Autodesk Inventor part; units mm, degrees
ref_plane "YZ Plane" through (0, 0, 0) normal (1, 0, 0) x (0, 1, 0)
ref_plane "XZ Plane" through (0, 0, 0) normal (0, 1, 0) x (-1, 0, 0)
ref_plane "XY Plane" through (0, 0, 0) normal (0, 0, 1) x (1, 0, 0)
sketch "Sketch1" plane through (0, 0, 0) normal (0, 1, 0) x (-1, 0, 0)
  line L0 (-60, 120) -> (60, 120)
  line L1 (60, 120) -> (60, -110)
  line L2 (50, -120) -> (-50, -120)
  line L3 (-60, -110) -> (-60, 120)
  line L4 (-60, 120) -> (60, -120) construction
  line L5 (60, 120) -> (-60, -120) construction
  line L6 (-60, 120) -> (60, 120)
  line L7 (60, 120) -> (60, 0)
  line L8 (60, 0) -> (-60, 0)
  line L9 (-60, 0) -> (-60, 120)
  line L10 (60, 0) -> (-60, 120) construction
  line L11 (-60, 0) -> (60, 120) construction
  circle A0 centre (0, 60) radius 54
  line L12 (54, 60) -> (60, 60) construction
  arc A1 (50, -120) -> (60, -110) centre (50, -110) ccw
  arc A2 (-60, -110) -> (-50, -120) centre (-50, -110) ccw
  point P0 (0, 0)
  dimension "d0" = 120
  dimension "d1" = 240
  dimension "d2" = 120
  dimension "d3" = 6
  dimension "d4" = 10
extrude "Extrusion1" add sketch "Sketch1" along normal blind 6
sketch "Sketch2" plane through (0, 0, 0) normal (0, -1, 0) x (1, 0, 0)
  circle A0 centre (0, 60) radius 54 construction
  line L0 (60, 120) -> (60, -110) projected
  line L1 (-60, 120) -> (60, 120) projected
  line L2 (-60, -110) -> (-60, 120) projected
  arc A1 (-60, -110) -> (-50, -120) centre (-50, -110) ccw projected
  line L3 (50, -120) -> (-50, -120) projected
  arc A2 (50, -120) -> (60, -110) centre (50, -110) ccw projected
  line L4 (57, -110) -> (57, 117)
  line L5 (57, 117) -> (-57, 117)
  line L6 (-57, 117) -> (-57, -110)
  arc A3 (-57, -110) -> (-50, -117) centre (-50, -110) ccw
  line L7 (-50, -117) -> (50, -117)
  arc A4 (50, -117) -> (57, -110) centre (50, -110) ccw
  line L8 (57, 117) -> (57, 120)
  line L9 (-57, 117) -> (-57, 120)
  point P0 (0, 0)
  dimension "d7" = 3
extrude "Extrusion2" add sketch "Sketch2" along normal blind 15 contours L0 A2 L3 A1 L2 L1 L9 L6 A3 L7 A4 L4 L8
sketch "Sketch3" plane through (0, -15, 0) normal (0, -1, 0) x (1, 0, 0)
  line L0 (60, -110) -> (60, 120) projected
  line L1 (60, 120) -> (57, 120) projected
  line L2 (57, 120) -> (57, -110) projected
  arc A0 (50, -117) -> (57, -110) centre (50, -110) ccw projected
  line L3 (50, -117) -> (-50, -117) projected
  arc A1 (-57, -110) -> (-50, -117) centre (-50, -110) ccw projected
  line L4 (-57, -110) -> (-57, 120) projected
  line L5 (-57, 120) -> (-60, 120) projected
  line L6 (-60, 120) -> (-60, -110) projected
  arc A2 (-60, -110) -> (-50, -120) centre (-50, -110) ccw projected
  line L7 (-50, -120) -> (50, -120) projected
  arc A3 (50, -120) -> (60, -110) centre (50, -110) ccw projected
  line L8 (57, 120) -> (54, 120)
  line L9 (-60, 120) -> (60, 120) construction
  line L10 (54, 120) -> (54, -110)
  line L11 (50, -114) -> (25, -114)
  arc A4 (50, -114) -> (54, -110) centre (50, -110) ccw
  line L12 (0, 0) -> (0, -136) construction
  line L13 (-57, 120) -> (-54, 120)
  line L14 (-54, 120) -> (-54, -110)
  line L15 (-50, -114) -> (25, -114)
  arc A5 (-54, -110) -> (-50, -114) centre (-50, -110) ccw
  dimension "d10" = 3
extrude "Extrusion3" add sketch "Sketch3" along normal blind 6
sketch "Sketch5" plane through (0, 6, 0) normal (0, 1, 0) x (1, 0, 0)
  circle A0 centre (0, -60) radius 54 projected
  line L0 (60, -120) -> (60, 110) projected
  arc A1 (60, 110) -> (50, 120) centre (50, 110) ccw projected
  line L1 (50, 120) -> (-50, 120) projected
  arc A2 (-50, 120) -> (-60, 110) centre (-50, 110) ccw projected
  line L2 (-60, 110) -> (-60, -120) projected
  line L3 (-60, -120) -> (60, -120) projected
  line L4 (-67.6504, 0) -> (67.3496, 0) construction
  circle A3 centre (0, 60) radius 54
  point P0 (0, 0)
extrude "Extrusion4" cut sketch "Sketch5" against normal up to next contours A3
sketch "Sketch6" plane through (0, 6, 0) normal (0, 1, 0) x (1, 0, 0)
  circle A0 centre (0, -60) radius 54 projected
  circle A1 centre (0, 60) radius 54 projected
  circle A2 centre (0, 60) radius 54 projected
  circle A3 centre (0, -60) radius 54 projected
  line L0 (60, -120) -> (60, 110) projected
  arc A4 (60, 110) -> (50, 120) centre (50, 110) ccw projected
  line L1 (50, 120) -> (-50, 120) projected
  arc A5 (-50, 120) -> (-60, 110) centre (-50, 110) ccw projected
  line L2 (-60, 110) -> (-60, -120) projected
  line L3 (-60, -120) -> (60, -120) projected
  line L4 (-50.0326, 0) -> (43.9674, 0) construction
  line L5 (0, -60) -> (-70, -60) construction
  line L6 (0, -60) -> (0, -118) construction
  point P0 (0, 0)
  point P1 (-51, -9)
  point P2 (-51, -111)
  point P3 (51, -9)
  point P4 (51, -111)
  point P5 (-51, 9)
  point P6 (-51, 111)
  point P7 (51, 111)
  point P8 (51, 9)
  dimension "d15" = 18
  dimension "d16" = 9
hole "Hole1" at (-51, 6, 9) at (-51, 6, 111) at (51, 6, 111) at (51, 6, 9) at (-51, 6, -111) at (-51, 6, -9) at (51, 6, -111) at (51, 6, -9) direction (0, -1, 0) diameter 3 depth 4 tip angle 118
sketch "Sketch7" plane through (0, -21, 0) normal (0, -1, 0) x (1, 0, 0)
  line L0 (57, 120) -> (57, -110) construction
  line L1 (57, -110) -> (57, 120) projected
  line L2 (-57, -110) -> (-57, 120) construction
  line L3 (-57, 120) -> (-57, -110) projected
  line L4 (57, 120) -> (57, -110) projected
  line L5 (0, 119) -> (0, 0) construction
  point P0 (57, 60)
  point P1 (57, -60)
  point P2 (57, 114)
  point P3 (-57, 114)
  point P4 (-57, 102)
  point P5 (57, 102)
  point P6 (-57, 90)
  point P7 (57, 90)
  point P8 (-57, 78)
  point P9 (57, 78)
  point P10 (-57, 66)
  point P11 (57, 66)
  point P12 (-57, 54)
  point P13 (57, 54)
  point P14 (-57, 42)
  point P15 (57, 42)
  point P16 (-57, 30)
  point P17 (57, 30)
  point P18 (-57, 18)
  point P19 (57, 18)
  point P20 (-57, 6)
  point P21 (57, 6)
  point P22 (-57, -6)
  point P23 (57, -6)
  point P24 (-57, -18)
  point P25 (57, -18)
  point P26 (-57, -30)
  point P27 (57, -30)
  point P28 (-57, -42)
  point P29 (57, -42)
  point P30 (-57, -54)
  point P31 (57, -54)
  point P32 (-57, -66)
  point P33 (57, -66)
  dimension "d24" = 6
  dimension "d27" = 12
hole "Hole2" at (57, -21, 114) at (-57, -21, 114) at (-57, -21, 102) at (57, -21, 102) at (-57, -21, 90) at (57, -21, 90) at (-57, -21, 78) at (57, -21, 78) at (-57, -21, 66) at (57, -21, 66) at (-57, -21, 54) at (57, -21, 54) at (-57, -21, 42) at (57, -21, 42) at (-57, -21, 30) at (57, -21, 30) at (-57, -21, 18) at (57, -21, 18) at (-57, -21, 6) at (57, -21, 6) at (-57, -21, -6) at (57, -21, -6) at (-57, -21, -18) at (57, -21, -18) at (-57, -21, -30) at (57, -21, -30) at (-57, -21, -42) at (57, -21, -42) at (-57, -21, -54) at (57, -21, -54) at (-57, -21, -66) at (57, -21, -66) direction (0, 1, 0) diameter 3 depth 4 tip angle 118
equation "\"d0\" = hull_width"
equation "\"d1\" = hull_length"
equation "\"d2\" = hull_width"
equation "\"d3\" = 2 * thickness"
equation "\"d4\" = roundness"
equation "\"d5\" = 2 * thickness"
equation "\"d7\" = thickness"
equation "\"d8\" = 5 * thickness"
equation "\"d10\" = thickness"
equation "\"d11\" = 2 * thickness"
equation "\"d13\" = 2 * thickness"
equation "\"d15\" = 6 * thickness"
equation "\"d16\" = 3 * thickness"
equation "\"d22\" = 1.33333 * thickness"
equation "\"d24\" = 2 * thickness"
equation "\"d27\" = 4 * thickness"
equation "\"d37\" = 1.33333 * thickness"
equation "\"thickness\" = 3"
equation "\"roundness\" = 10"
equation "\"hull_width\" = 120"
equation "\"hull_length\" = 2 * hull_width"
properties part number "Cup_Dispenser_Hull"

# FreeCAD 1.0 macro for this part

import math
import FreeCAD as App
import Part
import Sketcher
from FreeCAD import Vector
Q = App.Units.Quantity

doc = App.newDocument("Part")
params = doc.addObject("Spreadsheet::Sheet", "Params")
for row, (alias, value) in enumerate([
    ("sketch1_radius", "10 mm"),
    ("sketch1_width", "120 mm"),
    ("sketch1_diameter", "108 mm"),
    ("pad1_length", "6 mm"),
    ("sketch2_width", "3 mm"),
    ("sketch2_radius", "7 mm"),
    ("sketch2_width2", "100 mm"),
    ("sketch2_height", "230 mm"),
    ("pad2_length", "15 mm"),
    ("sketch3_radius", "10 mm"),
    ("sketch3_radius2", "4 mm"),
    ("sketch3_width", "100 mm"),
    ("sketch3_height", "230 mm"),
    ("pad3_length", "6 mm"),
    ("sketch4_diameter", "108 mm"),
    ("sketch5_diameter", "3 mm"),
    ("hole_diameter", "3 mm"),
    ("hole_depth", "4 mm"),
    ("sketch6_diameter", "3 mm"),
    ("hole2_diameter", "3 mm"),
    ("hole2_depth", "4 mm"),
], start=1):
    params.set(f"A{row}", alias)
    params.set(f"B{row}", "=" + value)
    params.setAlias(f"B{row}", alias)

body = doc.addObject("PartDesign::Body", "Body")

# Sketch on XZ plane
sketch1 = body.newObject("Sketcher::SketchObject", "Sketch")
sketch1.AttachmentSupport = (doc.getObject("XZ_Plane"), [""])
sketch1.MapMode = "FlatFace"
sketch1.addGeometry(Part.LineSegment(Vector(-60, 120, 0), Vector(60, 120, 0)), False)
sketch1.addGeometry(Part.LineSegment(Vector(60, 120, 0), Vector(60, -110, 0)), False)
sketch1.addGeometry(Part.ArcOfCircle(Part.Circle(Vector(50, -110, 0), Vector(0, 0, 1), 10), math.radians(-90), math.radians(0)), False)
sketch1.addGeometry(Part.LineSegment(Vector(50, -120, 0), Vector(-50, -120, 0)), False)
sketch1.addGeometry(Part.ArcOfCircle(Part.Circle(Vector(-50, -110, 0), Vector(0, 0, 1), 10), math.radians(180), math.radians(270)), False)
sketch1.addGeometry(Part.LineSegment(Vector(-60, -110, 0), Vector(-60, 120, 0)), False)
sketch1.addGeometry(Part.Circle(Vector(0, 60, 0), Vector(0, 0, 1), 54), False)
sketch1.addConstraint(Sketcher.Constraint("Coincident", 0, 2, 1, 1))
sketch1.addConstraint(Sketcher.Constraint("Tangent", 1, 2, 2, 2))
sketch1.addConstraint(Sketcher.Constraint("Tangent", 2, 1, 3, 1))
sketch1.addConstraint(Sketcher.Constraint("Tangent", 3, 2, 4, 2))
sketch1.addConstraint(Sketcher.Constraint("Tangent", 4, 1, 5, 1))
sketch1.addConstraint(Sketcher.Constraint("Coincident", 5, 2, 0, 1))
sketch1.addConstraint(Sketcher.Constraint("Horizontal", 0))
sketch1.addConstraint(Sketcher.Constraint("Vertical", 1))
sketch1.addConstraint(Sketcher.Constraint("Horizontal", 3))
sketch1.addConstraint(Sketcher.Constraint("Vertical", 5))
sketch1.addConstraint(Sketcher.Constraint("Equal", 2, 4))
sketch1.addConstraint(Sketcher.Constraint("PointOnObject", 6, 3, -2))
sketch1.addConstraint(Sketcher.Constraint("Radius", 2, Q("10 mm")))
sketch1.addConstraint(Sketcher.Constraint("DistanceX", 0, 1, 0, 2, Q("120 mm")))
sketch1.addConstraint(Sketcher.Constraint("Diameter", 6, Q("108 mm")))
sketch1.addConstraint(Sketcher.Constraint("DistanceY", -1, 1, 0, 2, Q("120 mm")))
sketch1.addConstraint(Sketcher.Constraint("DistanceY", 2, 1, -1, 1, Q("120 mm")))
sketch1.addConstraint(Sketcher.Constraint("DistanceX", -1, 1, 2, 3, Q("50 mm")))
sketch1.addConstraint(Sketcher.Constraint("DistanceY", -1, 1, 6, 3, Q("60 mm")))
sketch1.setExpression("Constraints[12]", "Params.sketch1_radius")
sketch1.setExpression("Constraints[13]", "Params.sketch1_width")
sketch1.setExpression("Constraints[14]", "Params.sketch1_diameter")
pad1 = body.newObject("PartDesign::Pad", "Pad")
pad1.Profile = sketch1
pad1.setExpression("Length", "Params.pad1_length")
pad1.Reversed = True

# Sketch on XZ plane
sketch2 = body.newObject("Sketcher::SketchObject", "Sketch001")
sketch2.AttachmentSupport = (doc.getObject("XZ_Plane"), [""])
sketch2.MapMode = "FlatFace"
sketch2.addGeometry(Part.LineSegment(Vector(60, -110, 0), Vector(60, 120, 0)), False)
sketch2.addGeometry(Part.LineSegment(Vector(60, 120, 0), Vector(57, 120, 0)), False)
sketch2.addGeometry(Part.LineSegment(Vector(57, 120, 0), Vector(57, -110, 0)), False)
sketch2.addGeometry(Part.ArcOfCircle(Part.Circle(Vector(50, -110, 0), Vector(0, 0, 1), 7), math.radians(-90), math.radians(0)), False)
sketch2.addGeometry(Part.LineSegment(Vector(50, -117, 0), Vector(-50, -117, 0)), False)
sketch2.addGeometry(Part.ArcOfCircle(Part.Circle(Vector(-50, -110, 0), Vector(0, 0, 1), 7), math.radians(180), math.radians(270)), False)
sketch2.addGeometry(Part.LineSegment(Vector(-57, -110, 0), Vector(-57, 120, 0)), False)
sketch2.addGeometry(Part.LineSegment(Vector(-57, 120, 0), Vector(-60, 120, 0)), False)
sketch2.addGeometry(Part.LineSegment(Vector(-60, 120, 0), Vector(-60, -110, 0)), False)
sketch2.addGeometry(Part.ArcOfCircle(Part.Circle(Vector(-50, -110, 0), Vector(0, 0, 1), 10), math.radians(180), math.radians(270)), False)
sketch2.addGeometry(Part.LineSegment(Vector(-50, -120, 0), Vector(50, -120, 0)), False)
sketch2.addGeometry(Part.ArcOfCircle(Part.Circle(Vector(50, -110, 0), Vector(0, 0, 1), 10), math.radians(-90), math.radians(0)), False)
sketch2.addConstraint(Sketcher.Constraint("Coincident", 0, 2, 1, 1))
sketch2.addConstraint(Sketcher.Constraint("Coincident", 1, 2, 2, 1))
sketch2.addConstraint(Sketcher.Constraint("Tangent", 2, 2, 3, 2))
sketch2.addConstraint(Sketcher.Constraint("Tangent", 3, 1, 4, 1))
sketch2.addConstraint(Sketcher.Constraint("Tangent", 4, 2, 5, 2))
sketch2.addConstraint(Sketcher.Constraint("Tangent", 5, 1, 6, 1))
sketch2.addConstraint(Sketcher.Constraint("Coincident", 6, 2, 7, 1))
sketch2.addConstraint(Sketcher.Constraint("Coincident", 7, 2, 8, 1))
sketch2.addConstraint(Sketcher.Constraint("Tangent", 8, 2, 9, 1))
sketch2.addConstraint(Sketcher.Constraint("Tangent", 9, 2, 10, 1))
sketch2.addConstraint(Sketcher.Constraint("Tangent", 10, 2, 11, 1))
sketch2.addConstraint(Sketcher.Constraint("Tangent", 11, 2, 0, 1))
sketch2.addConstraint(Sketcher.Constraint("Vertical", 0))
sketch2.addConstraint(Sketcher.Constraint("Horizontal", 1))
sketch2.addConstraint(Sketcher.Constraint("Vertical", 2))
sketch2.addConstraint(Sketcher.Constraint("Horizontal", 4))
sketch2.addConstraint(Sketcher.Constraint("Vertical", 6))
sketch2.addConstraint(Sketcher.Constraint("Horizontal", 7))
sketch2.addConstraint(Sketcher.Constraint("Vertical", 8))
sketch2.addConstraint(Sketcher.Constraint("Horizontal", 10))
sketch2.addConstraint(Sketcher.Constraint("Coincident", 9, 3, 5, 3))
sketch2.addConstraint(Sketcher.Constraint("Coincident", 11, 3, 3, 3))
sketch2.addConstraint(Sketcher.Constraint("Equal", 3, 5))
sketch2.addConstraint(Sketcher.Constraint("Symmetric", 1, 2, 6, 2, -2))
sketch2.addConstraint(Sketcher.Constraint("DistanceX", 1, 2, 1, 1, Q("3 mm")))
sketch2.addConstraint(Sketcher.Constraint("Radius", 3, Q("7 mm")))
sketch2.addConstraint(Sketcher.Constraint("DistanceX", 4, 2, 4, 1, Q("100 mm")))
sketch2.addConstraint(Sketcher.Constraint("DistanceY", 0, 1, 0, 2, Q("230 mm")))
sketch2.addConstraint(Sketcher.Constraint("DistanceY", 3, 3, -1, 1, Q("110 mm")))
sketch2.setExpression("Constraints[24]", "Params.sketch2_width")
sketch2.setExpression("Constraints[25]", "Params.sketch2_radius")
sketch2.setExpression("Constraints[26]", "Params.sketch2_width2")
sketch2.setExpression("Constraints[27]", "Params.sketch2_height")
pad2 = body.newObject("PartDesign::Pad", "Pad001")
pad2.Profile = sketch2
pad2.setExpression("Length", "Params.pad2_length")

# Sketch on XZ plane
sketch3 = body.newObject("Sketcher::SketchObject", "Sketch002")
sketch3.AttachmentSupport = (doc.getObject("XZ_Plane"), [""])
sketch3.MapMode = "FlatFace"
sketch3.AttachmentOffset = App.Placement(Vector(0, 0, 15), App.Rotation())
sketch3.addGeometry(Part.ArcOfCircle(Part.Circle(Vector(50, -110, 0), Vector(0, 0, 1), 10), math.radians(-90), math.radians(0)), False)
sketch3.addGeometry(Part.LineSegment(Vector(60, -110, 0), Vector(60, 120, 0)), False)
sketch3.addGeometry(Part.LineSegment(Vector(60, 120, 0), Vector(54, 120, 0)), False)
sketch3.addGeometry(Part.LineSegment(Vector(54, 120, 0), Vector(54, -110, 0)), False)
sketch3.addGeometry(Part.ArcOfCircle(Part.Circle(Vector(50, -110, 0), Vector(0, 0, 1), 4), math.radians(-90), math.radians(0)), False)
sketch3.addGeometry(Part.LineSegment(Vector(50, -114, 0), Vector(-50, -114, 0)), False)
sketch3.addGeometry(Part.ArcOfCircle(Part.Circle(Vector(-50, -110, 0), Vector(0, 0, 1), 4), math.radians(180), math.radians(270)), False)
sketch3.addGeometry(Part.LineSegment(Vector(-54, -110, 0), Vector(-54, 120, 0)), False)
sketch3.addGeometry(Part.LineSegment(Vector(-54, 120, 0), Vector(-60, 120, 0)), False)
sketch3.addGeometry(Part.LineSegment(Vector(-60, 120, 0), Vector(-60, -110, 0)), False)
sketch3.addGeometry(Part.ArcOfCircle(Part.Circle(Vector(-50, -110, 0), Vector(0, 0, 1), 10), math.radians(180), math.radians(270)), False)
sketch3.addGeometry(Part.LineSegment(Vector(-50, -120, 0), Vector(50, -120, 0)), False)
sketch3.addConstraint(Sketcher.Constraint("Tangent", 0, 2, 1, 1))
sketch3.addConstraint(Sketcher.Constraint("Coincident", 1, 2, 2, 1))
sketch3.addConstraint(Sketcher.Constraint("Coincident", 2, 2, 3, 1))
sketch3.addConstraint(Sketcher.Constraint("Tangent", 3, 2, 4, 2))
sketch3.addConstraint(Sketcher.Constraint("Tangent", 4, 1, 5, 1))
sketch3.addConstraint(Sketcher.Constraint("Tangent", 5, 2, 6, 2))
sketch3.addConstraint(Sketcher.Constraint("Tangent", 6, 1, 7, 1))
sketch3.addConstraint(Sketcher.Constraint("Coincident", 7, 2, 8, 1))
sketch3.addConstraint(Sketcher.Constraint("Coincident", 8, 2, 9, 1))
sketch3.addConstraint(Sketcher.Constraint("Tangent", 9, 2, 10, 1))
sketch3.addConstraint(Sketcher.Constraint("Tangent", 10, 2, 11, 1))
sketch3.addConstraint(Sketcher.Constraint("Tangent", 11, 2, 0, 1))
sketch3.addConstraint(Sketcher.Constraint("Vertical", 1))
sketch3.addConstraint(Sketcher.Constraint("Horizontal", 2))
sketch3.addConstraint(Sketcher.Constraint("Vertical", 3))
sketch3.addConstraint(Sketcher.Constraint("Horizontal", 5))
sketch3.addConstraint(Sketcher.Constraint("Vertical", 7))
sketch3.addConstraint(Sketcher.Constraint("Horizontal", 8))
sketch3.addConstraint(Sketcher.Constraint("Vertical", 9))
sketch3.addConstraint(Sketcher.Constraint("Horizontal", 11))
sketch3.addConstraint(Sketcher.Constraint("Coincident", 4, 3, 0, 3))
sketch3.addConstraint(Sketcher.Constraint("Coincident", 10, 3, 6, 3))
sketch3.addConstraint(Sketcher.Constraint("Equal", 4, 6))
sketch3.addConstraint(Sketcher.Constraint("Symmetric", 2, 2, 7, 2, -2))
sketch3.addConstraint(Sketcher.Constraint("Radius", 0, Q("10 mm")))
sketch3.addConstraint(Sketcher.Constraint("Radius", 4, Q("4 mm")))
sketch3.addConstraint(Sketcher.Constraint("DistanceX", 5, 2, 5, 1, Q("100 mm")))
sketch3.addConstraint(Sketcher.Constraint("DistanceY", 1, 1, 1, 2, Q("230 mm")))
sketch3.addConstraint(Sketcher.Constraint("DistanceY", 0, 3, -1, 1, Q("110 mm")))
sketch3.setExpression("Constraints[24]", "Params.sketch3_radius")
sketch3.setExpression("Constraints[25]", "Params.sketch3_radius2")
sketch3.setExpression("Constraints[26]", "Params.sketch3_width")
sketch3.setExpression("Constraints[27]", "Params.sketch3_height")
pad3 = body.newObject("PartDesign::Pad", "Pad002")
pad3.Profile = sketch3
pad3.setExpression("Length", "Params.pad3_length")

# Sketch on XZ plane
sketch4 = body.newObject("Sketcher::SketchObject", "Sketch003")
sketch4.AttachmentSupport = (doc.getObject("XZ_Plane"), [""])
sketch4.MapMode = "FlatFace"
sketch4.AttachmentOffset = App.Placement(Vector(0, 0, -6), App.Rotation())
sketch4.addGeometry(Part.Circle(Vector(0, -60, 0), Vector(0, 0, 1), 54), False)
sketch4.addConstraint(Sketcher.Constraint("PointOnObject", 0, 3, -2))
sketch4.addConstraint(Sketcher.Constraint("Diameter", 0, Q("108 mm")))
sketch4.addConstraint(Sketcher.Constraint("DistanceY", 0, 3, -1, 1, Q("60 mm")))
sketch4.setExpression("Constraints[1]", "Params.sketch4_diameter")
pocket1 = body.newObject("PartDesign::Pocket", "Pocket")
pocket1.Profile = sketch4
pocket1.Type = "UpToFirst"
pocket1.Reversed = True

# Sketch on XZ plane
sketch5 = body.newObject("Sketcher::SketchObject", "Sketch004")
sketch5.AttachmentSupport = (doc.getObject("XZ_Plane"), [""])
sketch5.MapMode = "FlatFace"
sketch5.AttachmentOffset = App.Placement(Vector(0, 0, -6), App.Rotation())
sketch5.addGeometry(Part.Circle(Vector(-51, 9, 0), Vector(0, 0, 1), 1.5), False)
sketch5.addGeometry(Part.Circle(Vector(-51, 111, 0), Vector(0, 0, 1), 1.5), False)
sketch5.addGeometry(Part.Circle(Vector(51, 111, 0), Vector(0, 0, 1), 1.5), False)
sketch5.addGeometry(Part.Circle(Vector(51, 9, 0), Vector(0, 0, 1), 1.5), False)
sketch5.addGeometry(Part.Circle(Vector(-51, -111, 0), Vector(0, 0, 1), 1.5), False)
sketch5.addGeometry(Part.Circle(Vector(-51, -9, 0), Vector(0, 0, 1), 1.5), False)
sketch5.addGeometry(Part.Circle(Vector(51, -111, 0), Vector(0, 0, 1), 1.5), False)
sketch5.addGeometry(Part.Circle(Vector(51, -9, 0), Vector(0, 0, 1), 1.5), False)
sketch5.addConstraint(Sketcher.Constraint("Equal", 0, 1))
sketch5.addConstraint(Sketcher.Constraint("Equal", 1, 2))
sketch5.addConstraint(Sketcher.Constraint("Equal", 2, 3))
sketch5.addConstraint(Sketcher.Constraint("Equal", 3, 4))
sketch5.addConstraint(Sketcher.Constraint("Equal", 4, 5))
sketch5.addConstraint(Sketcher.Constraint("Equal", 5, 6))
sketch5.addConstraint(Sketcher.Constraint("Equal", 6, 7))
sketch5.addConstraint(Sketcher.Constraint("Symmetric", 2, 3, 4, 3, -1, 1))
sketch5.addConstraint(Sketcher.Constraint("Symmetric", 3, 3, 5, 3, -1, 1))
sketch5.addConstraint(Sketcher.Constraint("Symmetric", 1, 3, 6, 3, -1, 1))
sketch5.addConstraint(Sketcher.Constraint("Symmetric", 0, 3, 7, 3, -1, 1))
sketch5.addConstraint(Sketcher.Constraint("Symmetric", 1, 3, 2, 3, -2))
sketch5.addConstraint(Sketcher.Constraint("Symmetric", 0, 3, 3, 3, -2))
sketch5.addConstraint(Sketcher.Constraint("Vertical", 0, 3, 1, 3))
sketch5.addConstraint(Sketcher.Constraint("Diameter", 0, Q("3 mm")))
sketch5.addConstraint(Sketcher.Constraint("DistanceX", 0, 3, -1, 1, Q("51 mm")))
sketch5.addConstraint(Sketcher.Constraint("DistanceY", -1, 1, 0, 3, Q("9 mm")))
sketch5.addConstraint(Sketcher.Constraint("DistanceY", -1, 1, 1, 3, Q("111 mm")))
sketch5.setExpression("Constraints[14]", "Params.sketch5_diameter")
doc.recompute()
hole = body.newObject("PartDesign::Hole", "Hole")
hole.Profile = sketch5
hole.ThreadType = "None"
hole.setExpression("Diameter", "Params.hole_diameter")
hole.DepthType = "Dimension"
hole.setExpression("Depth", "Params.hole_depth")
hole.DrillPoint = "Angled"
hole.DrillPointAngle = 118
hole.Reversed = True

# Sketch on XZ plane
sketch6 = body.newObject("Sketcher::SketchObject", "Sketch005")
sketch6.AttachmentSupport = (doc.getObject("XZ_Plane"), [""])
sketch6.MapMode = "FlatFace"
sketch6.AttachmentOffset = App.Placement(Vector(0, 0, 21), App.Rotation())
sketch6.addGeometry(Part.Circle(Vector(57, 114, 0), Vector(0, 0, 1), 1.5), False)
sketch6.addGeometry(Part.Circle(Vector(-57, 114, 0), Vector(0, 0, 1), 1.5), False)
sketch6.addGeometry(Part.Circle(Vector(-57, 102, 0), Vector(0, 0, 1), 1.5), False)
sketch6.addGeometry(Part.Circle(Vector(57, 102, 0), Vector(0, 0, 1), 1.5), False)
sketch6.addGeometry(Part.Circle(Vector(-57, 90, 0), Vector(0, 0, 1), 1.5), False)
sketch6.addGeometry(Part.Circle(Vector(57, 90, 0), Vector(0, 0, 1), 1.5), False)
sketch6.addGeometry(Part.Circle(Vector(-57, 78, 0), Vector(0, 0, 1), 1.5), False)
sketch6.addGeometry(Part.Circle(Vector(57, 78, 0), Vector(0, 0, 1), 1.5), False)
sketch6.addGeometry(Part.Circle(Vector(-57, 66, 0), Vector(0, 0, 1), 1.5), False)
sketch6.addGeometry(Part.Circle(Vector(57, 66, 0), Vector(0, 0, 1), 1.5), False)
sketch6.addGeometry(Part.Circle(Vector(-57, 54, 0), Vector(0, 0, 1), 1.5), False)
sketch6.addGeometry(Part.Circle(Vector(57, 54, 0), Vector(0, 0, 1), 1.5), False)
sketch6.addGeometry(Part.Circle(Vector(-57, 42, 0), Vector(0, 0, 1), 1.5), False)
sketch6.addGeometry(Part.Circle(Vector(57, 42, 0), Vector(0, 0, 1), 1.5), False)
sketch6.addGeometry(Part.Circle(Vector(-57, 30, 0), Vector(0, 0, 1), 1.5), False)
sketch6.addGeometry(Part.Circle(Vector(57, 30, 0), Vector(0, 0, 1), 1.5), False)
sketch6.addGeometry(Part.Circle(Vector(-57, 18, 0), Vector(0, 0, 1), 1.5), False)
sketch6.addGeometry(Part.Circle(Vector(57, 18, 0), Vector(0, 0, 1), 1.5), False)
sketch6.addGeometry(Part.Circle(Vector(-57, 6, 0), Vector(0, 0, 1), 1.5), False)
sketch6.addGeometry(Part.Circle(Vector(57, 6, 0), Vector(0, 0, 1), 1.5), False)
sketch6.addGeometry(Part.Circle(Vector(-57, -6, 0), Vector(0, 0, 1), 1.5), False)
sketch6.addGeometry(Part.Circle(Vector(57, -6, 0), Vector(0, 0, 1), 1.5), False)
sketch6.addGeometry(Part.Circle(Vector(-57, -18, 0), Vector(0, 0, 1), 1.5), False)
sketch6.addGeometry(Part.Circle(Vector(57, -18, 0), Vector(0, 0, 1), 1.5), False)
sketch6.addGeometry(Part.Circle(Vector(-57, -30, 0), Vector(0, 0, 1), 1.5), False)
sketch6.addGeometry(Part.Circle(Vector(57, -30, 0), Vector(0, 0, 1), 1.5), False)
sketch6.addGeometry(Part.Circle(Vector(-57, -42, 0), Vector(0, 0, 1), 1.5), False)
sketch6.addGeometry(Part.Circle(Vector(57, -42, 0), Vector(0, 0, 1), 1.5), False)
sketch6.addGeometry(Part.Circle(Vector(-57, -54, 0), Vector(0, 0, 1), 1.5), False)
sketch6.addGeometry(Part.Circle(Vector(57, -54, 0), Vector(0, 0, 1), 1.5), False)
sketch6.addGeometry(Part.Circle(Vector(-57, -66, 0), Vector(0, 0, 1), 1.5), False)
sketch6.addGeometry(Part.Circle(Vector(57, -66, 0), Vector(0, 0, 1), 1.5), False)
sketch6.addConstraint(Sketcher.Constraint("Equal", 0, 1))
sketch6.addConstraint(Sketcher.Constraint("Equal", 1, 2))
sketch6.addConstraint(Sketcher.Constraint("Equal", 2, 3))
sketch6.addConstraint(Sketcher.Constraint("Equal", 3, 4))
sketch6.addConstraint(Sketcher.Constraint("Equal", 4, 5))
sketch6.addConstraint(Sketcher.Constraint("Equal", 5, 6))
sketch6.addConstraint(Sketcher.Constraint("Equal", 6, 7))
sketch6.addConstraint(Sketcher.Constraint("Equal", 7, 8))
sketch6.addConstraint(Sketcher.Constraint("Equal", 8, 9))
sketch6.addConstraint(Sketcher.Constraint("Equal", 9, 10))
sketch6.addConstraint(Sketcher.Constraint("Equal", 10, 11))
sketch6.addConstraint(Sketcher.Constraint("Equal", 11, 12))
sketch6.addConstraint(Sketcher.Constraint("Equal", 12, 13))
sketch6.addConstraint(Sketcher.Constraint("Equal", 13, 14))
sketch6.addConstraint(Sketcher.Constraint("Equal", 14, 15))
sketch6.addConstraint(Sketcher.Constraint("Equal", 15, 16))
sketch6.addConstraint(Sketcher.Constraint("Equal", 16, 17))
sketch6.addConstraint(Sketcher.Constraint("Equal", 17, 18))
sketch6.addConstraint(Sketcher.Constraint("Equal", 18, 19))
sketch6.addConstraint(Sketcher.Constraint("Equal", 19, 20))
sketch6.addConstraint(Sketcher.Constraint("Equal", 20, 21))
sketch6.addConstraint(Sketcher.Constraint("Equal", 21, 22))
sketch6.addConstraint(Sketcher.Constraint("Equal", 22, 23))
sketch6.addConstraint(Sketcher.Constraint("Equal", 23, 24))
sketch6.addConstraint(Sketcher.Constraint("Equal", 24, 25))
sketch6.addConstraint(Sketcher.Constraint("Equal", 25, 26))
sketch6.addConstraint(Sketcher.Constraint("Equal", 26, 27))
sketch6.addConstraint(Sketcher.Constraint("Equal", 27, 28))
sketch6.addConstraint(Sketcher.Constraint("Equal", 28, 29))
sketch6.addConstraint(Sketcher.Constraint("Equal", 29, 30))
sketch6.addConstraint(Sketcher.Constraint("Equal", 30, 31))
sketch6.addConstraint(Sketcher.Constraint("Symmetric", 19, 3, 20, 3, -1, 1))
sketch6.addConstraint(Sketcher.Constraint("Symmetric", 18, 3, 21, 3, -1, 1))
sketch6.addConstraint(Sketcher.Constraint("Symmetric", 17, 3, 22, 3, -1, 1))
sketch6.addConstraint(Sketcher.Constraint("Symmetric", 16, 3, 23, 3, -1, 1))
sketch6.addConstraint(Sketcher.Constraint("Symmetric", 15, 3, 24, 3, -1, 1))
sketch6.addConstraint(Sketcher.Constraint("Symmetric", 14, 3, 25, 3, -1, 1))
sketch6.addConstraint(Sketcher.Constraint("Symmetric", 13, 3, 26, 3, -1, 1))
sketch6.addConstraint(Sketcher.Constraint("Symmetric", 12, 3, 27, 3, -1, 1))
sketch6.addConstraint(Sketcher.Constraint("Symmetric", 11, 3, 28, 3, -1, 1))
sketch6.addConstraint(Sketcher.Constraint("Symmetric", 10, 3, 29, 3, -1, 1))
sketch6.addConstraint(Sketcher.Constraint("Symmetric", 9, 3, 30, 3, -1, 1))
sketch6.addConstraint(Sketcher.Constraint("Symmetric", 8, 3, 31, 3, -1, 1))
sketch6.addConstraint(Sketcher.Constraint("Symmetric", 0, 3, 1, 3, -2))
sketch6.addConstraint(Sketcher.Constraint("Symmetric", 2, 3, 3, 3, -2))
sketch6.addConstraint(Sketcher.Constraint("Symmetric", 4, 3, 5, 3, -2))
sketch6.addConstraint(Sketcher.Constraint("Symmetric", 6, 3, 7, 3, -2))
sketch6.addConstraint(Sketcher.Constraint("Symmetric", 8, 3, 9, 3, -2))
sketch6.addConstraint(Sketcher.Constraint("Symmetric", 10, 3, 11, 3, -2))
sketch6.addConstraint(Sketcher.Constraint("Symmetric", 12, 3, 13, 3, -2))
sketch6.addConstraint(Sketcher.Constraint("Symmetric", 14, 3, 15, 3, -2))
sketch6.addConstraint(Sketcher.Constraint("Symmetric", 16, 3, 17, 3, -2))
sketch6.addConstraint(Sketcher.Constraint("Symmetric", 18, 3, 19, 3, -2))
sketch6.addConstraint(Sketcher.Constraint("Vertical", 1, 3, 2, 3))
sketch6.addConstraint(Sketcher.Constraint("Vertical", 2, 3, 4, 3))
sketch6.addConstraint(Sketcher.Constraint("Vertical", 4, 3, 6, 3))
sketch6.addConstraint(Sketcher.Constraint("Vertical", 6, 3, 8, 3))
sketch6.addConstraint(Sketcher.Constraint("Vertical", 8, 3, 10, 3))
sketch6.addConstraint(Sketcher.Constraint("Vertical", 10, 3, 12, 3))
sketch6.addConstraint(Sketcher.Constraint("Vertical", 12, 3, 14, 3))
sketch6.addConstraint(Sketcher.Constraint("Vertical", 14, 3, 16, 3))
sketch6.addConstraint(Sketcher.Constraint("Vertical", 16, 3, 18, 3))
sketch6.addConstraint(Sketcher.Constraint("Diameter", 0, Q("3 mm")))
sketch6.addConstraint(Sketcher.Constraint("DistanceX", -1, 1, 0, 3, Q("57 mm")))
sketch6.addConstraint(Sketcher.Constraint("DistanceY", -1, 1, 0, 3, Q("114 mm")))
sketch6.addConstraint(Sketcher.Constraint("DistanceY", -1, 1, 2, 3, Q("102 mm")))
sketch6.addConstraint(Sketcher.Constraint("DistanceY", -1, 1, 4, 3, Q("90 mm")))
sketch6.addConstraint(Sketcher.Constraint("DistanceY", -1, 1, 6, 3, Q("78 mm")))
sketch6.addConstraint(Sketcher.Constraint("DistanceY", -1, 1, 8, 3, Q("66 mm")))
sketch6.addConstraint(Sketcher.Constraint("DistanceY", -1, 1, 10, 3, Q("54 mm")))
sketch6.addConstraint(Sketcher.Constraint("DistanceY", -1, 1, 12, 3, Q("42 mm")))
sketch6.addConstraint(Sketcher.Constraint("DistanceY", -1, 1, 14, 3, Q("30 mm")))
sketch6.addConstraint(Sketcher.Constraint("DistanceY", -1, 1, 16, 3, Q("18 mm")))
sketch6.addConstraint(Sketcher.Constraint("DistanceY", -1, 1, 18, 3, Q("6 mm")))
sketch6.setExpression("Constraints[62]", "Params.sketch6_diameter")
doc.recompute()
hole2 = body.newObject("PartDesign::Hole", "Hole001")
hole2.Profile = sketch6
hole2.ThreadType = "None"
hole2.setExpression("Diameter", "Params.hole2_diameter")
hole2.DepthType = "Dimension"
hole2.setExpression("Depth", "Params.hole2_depth")
hole2.DrillPoint = "Angled"
hole2.DrillPointAngle = 118

doc.recompute()
